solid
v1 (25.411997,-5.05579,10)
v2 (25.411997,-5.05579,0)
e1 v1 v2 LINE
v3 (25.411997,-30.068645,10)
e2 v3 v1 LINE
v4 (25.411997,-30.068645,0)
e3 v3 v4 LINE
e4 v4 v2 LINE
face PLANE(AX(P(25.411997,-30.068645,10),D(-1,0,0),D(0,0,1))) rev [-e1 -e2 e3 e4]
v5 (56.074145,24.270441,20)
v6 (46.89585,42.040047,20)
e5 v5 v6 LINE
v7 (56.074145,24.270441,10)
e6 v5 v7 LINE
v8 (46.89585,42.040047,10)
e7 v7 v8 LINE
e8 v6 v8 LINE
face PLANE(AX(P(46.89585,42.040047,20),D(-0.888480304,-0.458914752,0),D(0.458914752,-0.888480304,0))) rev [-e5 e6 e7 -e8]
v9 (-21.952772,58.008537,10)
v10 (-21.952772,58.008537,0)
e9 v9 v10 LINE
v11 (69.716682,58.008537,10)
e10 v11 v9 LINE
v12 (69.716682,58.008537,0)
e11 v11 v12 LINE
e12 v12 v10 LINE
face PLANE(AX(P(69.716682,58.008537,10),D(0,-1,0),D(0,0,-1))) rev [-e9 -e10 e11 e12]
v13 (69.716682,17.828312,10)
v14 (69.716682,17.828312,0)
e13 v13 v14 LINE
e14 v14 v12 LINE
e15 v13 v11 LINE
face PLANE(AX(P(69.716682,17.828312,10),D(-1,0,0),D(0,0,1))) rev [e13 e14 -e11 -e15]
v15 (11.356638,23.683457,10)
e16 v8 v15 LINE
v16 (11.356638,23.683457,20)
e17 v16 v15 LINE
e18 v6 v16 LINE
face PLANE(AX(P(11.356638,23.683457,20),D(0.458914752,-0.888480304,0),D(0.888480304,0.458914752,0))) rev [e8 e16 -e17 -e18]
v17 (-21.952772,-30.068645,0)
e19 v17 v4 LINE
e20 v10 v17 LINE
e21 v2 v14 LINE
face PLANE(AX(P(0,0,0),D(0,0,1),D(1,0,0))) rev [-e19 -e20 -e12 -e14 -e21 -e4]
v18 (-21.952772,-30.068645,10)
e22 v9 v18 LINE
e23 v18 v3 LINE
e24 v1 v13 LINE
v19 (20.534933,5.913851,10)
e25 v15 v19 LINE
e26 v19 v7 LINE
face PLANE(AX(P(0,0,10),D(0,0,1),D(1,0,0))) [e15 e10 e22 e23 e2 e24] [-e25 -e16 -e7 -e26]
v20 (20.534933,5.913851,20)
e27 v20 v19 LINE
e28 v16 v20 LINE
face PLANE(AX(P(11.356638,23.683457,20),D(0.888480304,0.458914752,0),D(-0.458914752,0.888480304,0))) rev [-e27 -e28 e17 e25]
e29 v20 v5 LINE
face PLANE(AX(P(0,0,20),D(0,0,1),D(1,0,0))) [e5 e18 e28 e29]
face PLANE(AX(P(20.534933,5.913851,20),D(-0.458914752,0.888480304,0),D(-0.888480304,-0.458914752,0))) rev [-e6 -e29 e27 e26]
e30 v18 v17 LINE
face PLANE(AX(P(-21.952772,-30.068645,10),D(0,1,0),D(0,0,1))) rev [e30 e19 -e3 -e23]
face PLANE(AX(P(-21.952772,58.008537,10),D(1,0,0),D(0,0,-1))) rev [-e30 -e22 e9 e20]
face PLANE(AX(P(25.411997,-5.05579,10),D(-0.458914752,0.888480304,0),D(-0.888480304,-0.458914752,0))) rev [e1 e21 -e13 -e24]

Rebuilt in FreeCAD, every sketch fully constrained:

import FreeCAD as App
import Part
import Sketcher

V = App.Vector

doc = App.newDocument("Part")
body = doc.addObject("PartDesign::Body", "Body")

# Sketch on XY plane
sketch1 = body.newObject("Sketcher::SketchObject", "Sketch")
sketch1.AttachmentSupport = (doc.getObject("XY_Plane"), [""])
sketch1.MapMode = "FlatFace"
sketch1.addGeometry(Part.LineSegment(V(-22, -30, 0), V(25, -30, 0)), False)
sketch1.addGeometry(Part.LineSegment(V(25, -30, 0), V(25, -5, 0)), False)
sketch1.addGeometry(Part.LineSegment(V(25, -5, 0), V(70, 18, 0)), False)
sketch1.addGeometry(Part.LineSegment(V(70, 18, 0), V(70, 58, 0)), False)
sketch1.addGeometry(Part.LineSegment(V(70, 58, 0), V(-22, 58, 0)), False)
sketch1.addGeometry(Part.LineSegment(V(-22, 58, 0), V(-22, -30, 0)), False)
sketch1.addConstraint(Sketcher.Constraint("Coincident", 0, 2, 1, 1))
sketch1.addConstraint(Sketcher.Constraint("Coincident", 1, 2, 2, 1))
sketch1.addConstraint(Sketcher.Constraint("Coincident", 2, 2, 3, 1))
sketch1.addConstraint(Sketcher.Constraint("Coincident", 3, 2, 4, 1))
sketch1.addConstraint(Sketcher.Constraint("Coincident", 4, 2, 5, 1))
sketch1.addConstraint(Sketcher.Constraint("Coincident", 5, 2, 0, 1))
sketch1.addConstraint(Sketcher.Constraint("Horizontal", 0))
sketch1.addConstraint(Sketcher.Constraint("Vertical", 1))
sketch1.addConstraint(Sketcher.Constraint("Vertical", 3))
sketch1.addConstraint(Sketcher.Constraint("Horizontal", 4))
sketch1.addConstraint(Sketcher.Constraint("Vertical", 5))
sketch1.addConstraint(Sketcher.Constraint("DistanceX", 0, 1, 0, 2, 47.364769))
sketch1.addConstraint(Sketcher.Constraint("DistanceY", 1, 2, 2, 2, 22.884102))
sketch1.addConstraint(Sketcher.Constraint("DistanceX", 4, 2, 4, 1, 91.669454))
sketch1.addConstraint(Sketcher.Constraint("DistanceY", 1, 1, 1, 2, 25.012855))
sketch1.addConstraint(Sketcher.Constraint("DistanceY", 3, 1, 3, 2, 40.180225))
sketch1.addConstraint(Sketcher.Constraint("DistanceY", 1, 2, -1, 1, 5.05579))
sketch1.addConstraint(Sketcher.Constraint("DistanceX", -1, 1, 0, 2, 25.411997))
pad1 = body.newObject("PartDesign::Pad", "Pad")
pad1.Profile = sketch1
pad1.Length = 10

# Sketch on XY plane
sketch2 = body.newObject("Sketcher::SketchObject", "Sketch001")
sketch2.AttachmentSupport = (doc.getObject("XY_Plane"), [""])
sketch2.MapMode = "FlatFace"
sketch2.AttachmentOffset = App.Placement(V(0, 0, 10), App.Rotation())
sketch2.addGeometry(Part.LineSegment(V(11, 24, 0), V(21, 6, 0)), False)
sketch2.addGeometry(Part.LineSegment(V(21, 6, 0), V(56, 24, 0)), False)
sketch2.addGeometry(Part.LineSegment(V(56, 24, 0), V(47, 42, 0)), False)
sketch2.addGeometry(Part.LineSegment(V(47, 42, 0), V(11, 24, 0)), False)
sketch2.addConstraint(Sketcher.Constraint("Coincident", 0, 2, 1, 1))
sketch2.addConstraint(Sketcher.Constraint("Coincident", 1, 2, 2, 1))
sketch2.addConstraint(Sketcher.Constraint("Coincident", 2, 2, 3, 1))
sketch2.addConstraint(Sketcher.Constraint("Coincident", 3, 2, 0, 1))
sketch2.addConstraint(Sketcher.Constraint("Perpendicular", 0, 1))
sketch2.addConstraint(Sketcher.Constraint("Perpendicular", 1, 2))
sketch2.addConstraint(Sketcher.Constraint("Perpendicular", 2, 3))
sketch2.addConstraint(Sketcher.Constraint("Distance", 0, 20.0))
sketch2.addConstraint(Sketcher.Constraint("Distance", 1, 40.0))
sketch2.addConstraint(Sketcher.Constraint("DistanceY", -1, 1, 0, 2, 5.913851))
sketch2.addConstraint(Sketcher.Constraint("DistanceY", -1, 1, 1, 2, 24.270441))
sketch2.addConstraint(Sketcher.Constraint("DistanceX", -1, 1, 2, 2, 46.89585))
pad2 = body.newObject("PartDesign::Pad", "Pad001")
pad2.Profile = sketch2
pad2.Length = 10

doc.recompute()
